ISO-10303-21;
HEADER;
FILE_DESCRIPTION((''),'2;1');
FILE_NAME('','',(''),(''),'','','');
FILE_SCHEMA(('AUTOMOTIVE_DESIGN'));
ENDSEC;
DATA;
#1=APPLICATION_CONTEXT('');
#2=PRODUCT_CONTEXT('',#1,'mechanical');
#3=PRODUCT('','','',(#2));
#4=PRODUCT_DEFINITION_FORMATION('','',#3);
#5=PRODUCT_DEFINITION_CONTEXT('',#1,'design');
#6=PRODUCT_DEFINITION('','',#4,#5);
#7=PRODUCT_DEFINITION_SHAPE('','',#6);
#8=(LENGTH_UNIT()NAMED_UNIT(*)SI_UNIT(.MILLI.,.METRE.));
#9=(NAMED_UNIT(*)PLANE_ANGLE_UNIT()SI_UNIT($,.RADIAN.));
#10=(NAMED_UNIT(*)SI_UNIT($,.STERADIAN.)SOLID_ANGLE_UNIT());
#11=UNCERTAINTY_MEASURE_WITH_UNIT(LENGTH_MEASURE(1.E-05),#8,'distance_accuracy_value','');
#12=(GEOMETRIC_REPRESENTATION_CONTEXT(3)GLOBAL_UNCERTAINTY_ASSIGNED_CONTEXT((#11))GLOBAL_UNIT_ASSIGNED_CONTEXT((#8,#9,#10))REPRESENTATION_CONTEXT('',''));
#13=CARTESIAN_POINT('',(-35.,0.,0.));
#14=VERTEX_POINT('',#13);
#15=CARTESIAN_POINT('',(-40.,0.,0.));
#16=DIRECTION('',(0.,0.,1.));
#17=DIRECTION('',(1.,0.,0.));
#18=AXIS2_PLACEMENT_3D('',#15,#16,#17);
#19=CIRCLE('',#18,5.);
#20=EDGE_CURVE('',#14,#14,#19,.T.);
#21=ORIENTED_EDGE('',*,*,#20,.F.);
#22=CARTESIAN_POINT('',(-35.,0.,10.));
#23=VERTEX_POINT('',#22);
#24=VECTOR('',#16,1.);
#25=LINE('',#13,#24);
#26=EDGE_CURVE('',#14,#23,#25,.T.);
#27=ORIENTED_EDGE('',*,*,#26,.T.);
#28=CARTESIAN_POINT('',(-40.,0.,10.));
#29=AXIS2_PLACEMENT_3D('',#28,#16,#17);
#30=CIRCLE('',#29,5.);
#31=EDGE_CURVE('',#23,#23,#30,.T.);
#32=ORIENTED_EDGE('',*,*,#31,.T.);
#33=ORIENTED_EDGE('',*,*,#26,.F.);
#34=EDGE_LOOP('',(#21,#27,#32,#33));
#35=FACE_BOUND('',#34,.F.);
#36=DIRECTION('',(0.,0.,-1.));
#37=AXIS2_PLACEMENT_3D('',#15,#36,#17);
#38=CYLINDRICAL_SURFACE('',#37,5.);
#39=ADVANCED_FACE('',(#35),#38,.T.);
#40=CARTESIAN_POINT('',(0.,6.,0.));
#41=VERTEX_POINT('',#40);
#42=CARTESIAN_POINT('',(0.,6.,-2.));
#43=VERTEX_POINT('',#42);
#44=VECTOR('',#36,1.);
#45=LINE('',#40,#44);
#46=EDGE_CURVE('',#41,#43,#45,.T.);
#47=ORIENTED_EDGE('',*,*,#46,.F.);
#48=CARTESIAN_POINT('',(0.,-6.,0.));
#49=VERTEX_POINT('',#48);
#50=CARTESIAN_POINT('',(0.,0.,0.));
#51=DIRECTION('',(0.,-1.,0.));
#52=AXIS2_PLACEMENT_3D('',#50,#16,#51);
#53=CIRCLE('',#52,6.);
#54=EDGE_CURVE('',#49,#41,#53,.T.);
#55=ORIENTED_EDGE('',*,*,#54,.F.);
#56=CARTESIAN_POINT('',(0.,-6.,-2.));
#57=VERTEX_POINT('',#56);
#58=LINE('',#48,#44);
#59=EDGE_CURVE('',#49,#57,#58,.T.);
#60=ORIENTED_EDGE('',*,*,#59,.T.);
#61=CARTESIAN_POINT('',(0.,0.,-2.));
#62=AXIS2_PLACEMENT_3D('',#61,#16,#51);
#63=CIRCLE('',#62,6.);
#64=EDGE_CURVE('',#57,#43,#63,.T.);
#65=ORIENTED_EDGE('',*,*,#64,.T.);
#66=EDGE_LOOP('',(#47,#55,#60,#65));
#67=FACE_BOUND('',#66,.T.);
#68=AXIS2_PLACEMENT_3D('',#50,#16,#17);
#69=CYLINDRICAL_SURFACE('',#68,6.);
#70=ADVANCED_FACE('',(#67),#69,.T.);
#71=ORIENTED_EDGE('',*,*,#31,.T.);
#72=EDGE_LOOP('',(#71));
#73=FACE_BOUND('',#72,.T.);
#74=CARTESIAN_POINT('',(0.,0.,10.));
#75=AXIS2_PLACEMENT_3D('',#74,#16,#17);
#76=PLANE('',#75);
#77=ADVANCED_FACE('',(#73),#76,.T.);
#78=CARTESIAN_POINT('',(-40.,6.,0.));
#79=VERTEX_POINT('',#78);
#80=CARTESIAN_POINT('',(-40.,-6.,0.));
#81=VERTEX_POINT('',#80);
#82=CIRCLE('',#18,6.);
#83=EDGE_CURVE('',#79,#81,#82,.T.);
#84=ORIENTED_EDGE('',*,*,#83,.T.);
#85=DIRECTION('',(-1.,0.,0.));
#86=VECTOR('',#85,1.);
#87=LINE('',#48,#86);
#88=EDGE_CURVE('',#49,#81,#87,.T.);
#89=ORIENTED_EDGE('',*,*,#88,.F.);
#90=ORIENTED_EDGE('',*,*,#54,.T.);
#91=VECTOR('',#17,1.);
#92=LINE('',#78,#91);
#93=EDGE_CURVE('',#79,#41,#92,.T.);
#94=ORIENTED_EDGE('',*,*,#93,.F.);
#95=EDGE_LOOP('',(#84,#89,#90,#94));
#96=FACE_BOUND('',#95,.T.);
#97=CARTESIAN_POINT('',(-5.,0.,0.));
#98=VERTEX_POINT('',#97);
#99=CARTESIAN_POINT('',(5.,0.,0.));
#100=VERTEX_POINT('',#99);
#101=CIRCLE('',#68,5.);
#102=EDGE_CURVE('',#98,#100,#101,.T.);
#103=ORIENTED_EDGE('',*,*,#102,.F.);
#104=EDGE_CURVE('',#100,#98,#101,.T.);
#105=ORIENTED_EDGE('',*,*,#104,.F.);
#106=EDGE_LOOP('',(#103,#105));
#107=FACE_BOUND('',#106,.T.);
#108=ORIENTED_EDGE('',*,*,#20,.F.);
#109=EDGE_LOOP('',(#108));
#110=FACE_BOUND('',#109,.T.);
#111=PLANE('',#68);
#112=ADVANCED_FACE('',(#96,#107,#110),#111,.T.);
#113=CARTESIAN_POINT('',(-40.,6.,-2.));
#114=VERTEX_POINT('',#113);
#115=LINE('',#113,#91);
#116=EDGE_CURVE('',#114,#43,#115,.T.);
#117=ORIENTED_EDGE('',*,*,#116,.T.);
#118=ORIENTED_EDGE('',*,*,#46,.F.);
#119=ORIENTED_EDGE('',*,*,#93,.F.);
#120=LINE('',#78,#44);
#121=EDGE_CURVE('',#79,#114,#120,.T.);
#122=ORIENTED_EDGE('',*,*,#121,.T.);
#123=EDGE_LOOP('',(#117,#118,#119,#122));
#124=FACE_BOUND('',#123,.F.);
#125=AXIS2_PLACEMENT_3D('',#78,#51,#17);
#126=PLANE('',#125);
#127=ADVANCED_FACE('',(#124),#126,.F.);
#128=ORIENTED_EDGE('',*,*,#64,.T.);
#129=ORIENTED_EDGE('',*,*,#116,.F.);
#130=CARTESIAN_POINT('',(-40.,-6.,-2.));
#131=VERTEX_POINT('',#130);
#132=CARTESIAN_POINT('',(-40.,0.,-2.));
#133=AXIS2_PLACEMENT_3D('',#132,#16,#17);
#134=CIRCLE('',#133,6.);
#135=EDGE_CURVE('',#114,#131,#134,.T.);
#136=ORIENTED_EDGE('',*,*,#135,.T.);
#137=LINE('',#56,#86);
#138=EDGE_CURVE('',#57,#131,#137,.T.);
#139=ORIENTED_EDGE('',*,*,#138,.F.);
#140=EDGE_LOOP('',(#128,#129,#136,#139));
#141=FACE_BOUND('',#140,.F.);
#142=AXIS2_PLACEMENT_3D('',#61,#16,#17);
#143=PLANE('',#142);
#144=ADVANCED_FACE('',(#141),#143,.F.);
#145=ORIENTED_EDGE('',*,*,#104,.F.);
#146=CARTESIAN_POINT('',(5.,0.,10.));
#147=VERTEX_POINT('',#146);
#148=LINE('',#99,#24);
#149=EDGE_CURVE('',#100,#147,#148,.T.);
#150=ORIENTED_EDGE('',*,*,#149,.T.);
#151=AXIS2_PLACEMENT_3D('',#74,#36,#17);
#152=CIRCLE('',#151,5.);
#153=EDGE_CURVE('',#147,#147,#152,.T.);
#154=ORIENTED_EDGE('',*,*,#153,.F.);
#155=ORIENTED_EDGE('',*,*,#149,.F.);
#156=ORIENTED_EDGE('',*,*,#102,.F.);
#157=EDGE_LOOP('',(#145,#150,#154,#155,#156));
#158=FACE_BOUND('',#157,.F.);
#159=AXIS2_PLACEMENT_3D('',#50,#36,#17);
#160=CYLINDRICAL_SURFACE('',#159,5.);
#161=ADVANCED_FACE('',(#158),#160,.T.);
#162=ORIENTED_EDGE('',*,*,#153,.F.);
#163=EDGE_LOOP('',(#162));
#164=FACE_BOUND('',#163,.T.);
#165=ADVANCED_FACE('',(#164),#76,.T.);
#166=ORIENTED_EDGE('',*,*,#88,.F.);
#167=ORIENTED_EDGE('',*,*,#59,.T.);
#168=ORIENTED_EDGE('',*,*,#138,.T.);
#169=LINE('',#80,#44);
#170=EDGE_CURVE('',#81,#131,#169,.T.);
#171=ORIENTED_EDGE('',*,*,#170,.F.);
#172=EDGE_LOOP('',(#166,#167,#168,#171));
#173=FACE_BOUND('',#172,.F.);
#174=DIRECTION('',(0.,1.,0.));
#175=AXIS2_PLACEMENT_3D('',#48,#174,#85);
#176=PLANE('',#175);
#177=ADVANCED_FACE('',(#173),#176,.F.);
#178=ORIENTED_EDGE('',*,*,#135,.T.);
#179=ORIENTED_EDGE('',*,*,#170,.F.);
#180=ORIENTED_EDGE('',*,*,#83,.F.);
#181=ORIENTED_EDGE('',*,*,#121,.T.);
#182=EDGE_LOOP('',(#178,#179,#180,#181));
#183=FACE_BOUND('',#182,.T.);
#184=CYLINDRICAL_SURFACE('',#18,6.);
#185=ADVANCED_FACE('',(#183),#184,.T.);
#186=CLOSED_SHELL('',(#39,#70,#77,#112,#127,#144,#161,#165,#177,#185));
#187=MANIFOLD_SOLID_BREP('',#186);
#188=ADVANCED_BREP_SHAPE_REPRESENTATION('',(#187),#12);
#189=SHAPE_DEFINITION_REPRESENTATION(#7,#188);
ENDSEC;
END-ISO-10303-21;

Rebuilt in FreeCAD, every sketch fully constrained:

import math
import FreeCAD as App
import Part
import Sketcher
Q = App.Units.Quantity

doc = App.newDocument("Part")
params = doc.addObject("Spreadsheet::Sheet", "Params")
for row, (alias, value) in enumerate([
    ("sketch1_diameter", "10 mm"),
    ("pad1_length", "10 mm"),
    ("sketch2_radius", "6 mm"),
    ("sketch2_width", "40 mm"),
    ("pad2_length", "2 mm"),
], start=1):
    params.set(f"A{row}", alias)
    params.set(f"B{row}", "=" + value)
    params.setAlias(f"B{row}", alias)

body = doc.addObject("PartDesign::Body", "Body")
body.AllowCompound = True

# Sketch on XY plane
sketch1 = body.newObject("Sketcher::SketchObject", "Sketch")
sketch1.AttachmentSupport = (doc.getObject("XY_Plane"), [""])
sketch1.MapMode = "FlatFace"
sketch1.addGeometry([
    Part.Circle(App.Vector(0, 0, 0), App.Vector(0, 0, 1), 5),
    Part.Circle(App.Vector(-40, 0, 0), App.Vector(0, 0, 1), 5),
], False)
sketch1.addConstraint([
    Sketcher.Constraint("Coincident", 0, 3, -1, 1),
    Sketcher.Constraint("Equal", 0, 1),
    Sketcher.Constraint("PointOnObject", 1, 3, -1),
    Sketcher.Constraint("Diameter", 0, Q("10 mm")),
    Sketcher.Constraint("DistanceX", 1, 3, -1, 1, Q("40 mm")),
])
sketch1.setExpression("Constraints[3]", "Params.sketch1_diameter")
pad1 = body.newObject("PartDesign::Pad", "Pad")
pad1.Profile = sketch1
pad1.setExpression("Length", "Params.pad1_length")

# Sketch on XY plane
sketch2 = body.newObject("Sketcher::SketchObject", "Sketch001")
sketch2.AttachmentSupport = (doc.getObject("XY_Plane"), [""])
sketch2.MapMode = "FlatFace"
sketch2.addGeometry([
    Part.LineSegment(App.Vector(0, 6, 0), App.Vector(-40, 6, 0)),
    Part.ArcOfCircle(Part.Circle(App.Vector(-40, 0, 0), App.Vector(0, 0, 1), 6), math.radians(90), math.radians(270)),
    Part.LineSegment(App.Vector(-40, -6, 0), App.Vector(0, -6, 0)),
    Part.ArcOfCircle(Part.Circle(App.Vector(0, 0, 0), App.Vector(0, 0, 1), 6), math.radians(-90), math.radians(90)),
], False)
sketch2.addConstraint([
    Sketcher.Constraint("Tangent", 0, 2, 1, 1),
    Sketcher.Constraint("Tangent", 1, 2, 2, 1),
    Sketcher.Constraint("Tangent", 2, 2, 3, 1),
    Sketcher.Constraint("Tangent", 3, 2, 0, 1),
    Sketcher.Constraint("Horizontal", 0),
    Sketcher.Constraint("Horizontal", 2),
    Sketcher.Constraint("Coincident", 3, 3, -1, 1),
    Sketcher.Constraint("Radius", 1, Q("6 mm")),
    Sketcher.Constraint("DistanceX", 0, 2, 0, 1, Q("40 mm")),
])
sketch2.setExpression("Constraints[7]", "Params.sketch2_radius")
sketch2.setExpression("Constraints[8]", "Params.sketch2_width")
pad2 = body.newObject("PartDesign::Pad", "Pad001")
pad2.Profile = sketch2
pad2.setExpression("Length", "Params.pad2_length")
pad2.Reversed = True

doc.recompute()
